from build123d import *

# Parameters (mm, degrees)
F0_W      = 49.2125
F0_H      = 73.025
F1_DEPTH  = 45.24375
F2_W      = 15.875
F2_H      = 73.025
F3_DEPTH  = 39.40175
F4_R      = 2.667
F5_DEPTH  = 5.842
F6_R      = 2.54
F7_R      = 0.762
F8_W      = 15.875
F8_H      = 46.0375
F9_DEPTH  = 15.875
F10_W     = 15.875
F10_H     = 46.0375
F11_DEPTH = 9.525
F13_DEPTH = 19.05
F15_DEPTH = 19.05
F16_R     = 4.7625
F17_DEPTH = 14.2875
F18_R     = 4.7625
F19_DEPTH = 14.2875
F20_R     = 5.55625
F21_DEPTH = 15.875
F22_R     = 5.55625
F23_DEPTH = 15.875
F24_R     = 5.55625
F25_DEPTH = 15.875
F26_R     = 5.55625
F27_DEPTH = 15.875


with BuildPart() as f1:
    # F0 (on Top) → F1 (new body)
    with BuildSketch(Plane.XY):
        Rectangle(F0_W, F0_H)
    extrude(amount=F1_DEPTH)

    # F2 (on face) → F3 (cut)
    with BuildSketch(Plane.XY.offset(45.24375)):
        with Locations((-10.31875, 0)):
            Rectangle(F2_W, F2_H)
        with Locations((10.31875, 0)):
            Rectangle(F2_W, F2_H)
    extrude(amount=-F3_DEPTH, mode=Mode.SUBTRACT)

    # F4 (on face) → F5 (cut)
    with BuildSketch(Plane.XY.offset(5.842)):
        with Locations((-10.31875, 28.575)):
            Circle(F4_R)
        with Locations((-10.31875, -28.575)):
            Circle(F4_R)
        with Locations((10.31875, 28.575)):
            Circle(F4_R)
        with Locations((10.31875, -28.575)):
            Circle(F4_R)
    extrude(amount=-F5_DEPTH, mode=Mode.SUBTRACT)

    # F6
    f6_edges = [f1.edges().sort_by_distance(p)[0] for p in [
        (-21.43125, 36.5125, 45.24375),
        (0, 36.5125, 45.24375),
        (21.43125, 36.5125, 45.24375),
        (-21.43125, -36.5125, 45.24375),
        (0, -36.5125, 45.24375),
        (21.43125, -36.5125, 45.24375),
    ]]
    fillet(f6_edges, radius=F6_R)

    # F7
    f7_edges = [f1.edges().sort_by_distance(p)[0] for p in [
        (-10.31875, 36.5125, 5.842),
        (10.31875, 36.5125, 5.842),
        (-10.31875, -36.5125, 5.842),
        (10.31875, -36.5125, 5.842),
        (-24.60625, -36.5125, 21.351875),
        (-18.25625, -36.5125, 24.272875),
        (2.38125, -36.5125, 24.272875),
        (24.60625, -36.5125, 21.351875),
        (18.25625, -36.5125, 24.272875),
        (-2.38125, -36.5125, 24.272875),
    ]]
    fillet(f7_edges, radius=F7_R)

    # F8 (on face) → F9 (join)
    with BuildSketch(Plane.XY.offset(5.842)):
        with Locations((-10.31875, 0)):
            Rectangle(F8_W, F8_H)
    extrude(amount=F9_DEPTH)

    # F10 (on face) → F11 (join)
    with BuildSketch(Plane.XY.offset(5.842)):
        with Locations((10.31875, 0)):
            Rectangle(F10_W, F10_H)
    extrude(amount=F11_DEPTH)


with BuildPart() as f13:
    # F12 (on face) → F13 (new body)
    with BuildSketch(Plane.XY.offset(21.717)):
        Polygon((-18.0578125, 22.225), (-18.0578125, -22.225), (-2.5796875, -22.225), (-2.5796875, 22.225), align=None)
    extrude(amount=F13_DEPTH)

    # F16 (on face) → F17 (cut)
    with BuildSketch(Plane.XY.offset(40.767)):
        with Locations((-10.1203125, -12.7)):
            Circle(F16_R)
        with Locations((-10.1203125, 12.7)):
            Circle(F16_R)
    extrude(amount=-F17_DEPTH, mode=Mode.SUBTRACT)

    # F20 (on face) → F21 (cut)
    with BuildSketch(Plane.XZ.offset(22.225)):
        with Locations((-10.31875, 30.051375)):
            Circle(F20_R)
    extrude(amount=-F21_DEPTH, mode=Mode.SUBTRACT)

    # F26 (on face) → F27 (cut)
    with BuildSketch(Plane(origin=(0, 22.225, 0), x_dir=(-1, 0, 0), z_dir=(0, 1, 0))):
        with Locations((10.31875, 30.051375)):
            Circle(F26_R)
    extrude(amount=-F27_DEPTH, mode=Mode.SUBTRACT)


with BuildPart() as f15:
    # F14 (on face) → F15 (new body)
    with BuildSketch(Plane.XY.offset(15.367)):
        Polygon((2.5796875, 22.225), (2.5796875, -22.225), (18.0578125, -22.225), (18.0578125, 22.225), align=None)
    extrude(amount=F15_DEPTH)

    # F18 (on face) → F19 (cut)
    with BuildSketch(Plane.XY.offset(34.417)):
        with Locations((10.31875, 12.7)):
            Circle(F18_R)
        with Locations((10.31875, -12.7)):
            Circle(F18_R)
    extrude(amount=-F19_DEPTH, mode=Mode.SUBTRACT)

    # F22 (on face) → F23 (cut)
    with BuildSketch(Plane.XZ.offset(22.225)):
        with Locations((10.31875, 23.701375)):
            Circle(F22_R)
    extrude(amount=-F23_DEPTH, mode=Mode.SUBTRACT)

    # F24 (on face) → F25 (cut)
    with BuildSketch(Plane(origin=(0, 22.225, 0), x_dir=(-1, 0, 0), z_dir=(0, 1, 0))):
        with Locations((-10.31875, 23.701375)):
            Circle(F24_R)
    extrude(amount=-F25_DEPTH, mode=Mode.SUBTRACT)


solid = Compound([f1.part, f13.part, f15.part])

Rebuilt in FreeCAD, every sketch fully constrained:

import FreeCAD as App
import Part
import Sketcher
from FreeCAD import Vector
Q = App.Units.Quantity


def edges_at(feature, points):
    """Names of the edges that pass closest to the given points."""
    edges = feature.Shape.Edges
    near = lambda p: min(range(len(edges)), key=lambda i: edges[i].distToShape(Part.Vertex(*p))[0])
    return sorted({f"Edge{near(p) + 1}" for p in points})


def add_polygon(sketch, points):
    """Adds a closed chain of lines whose ends are joined by coincident constraints."""
    first, n = sketch.GeometryCount, len(points)
    for a, b in zip(points, points[1:] + points[:1]):
        sketch.addGeometry(Part.LineSegment(App.Vector(*a, 0), App.Vector(*b, 0)), False)
    for i in range(n):
        sketch.addConstraint(Sketcher.Constraint("Coincident", first + i, 2, first + (i + 1) % n, 1))

doc = App.newDocument("Part")
params = doc.addObject("Spreadsheet::Sheet", "Params")
for row, (alias, value) in enumerate([
    ("sketch1_width", "1.9375 in"),
    ("sketch1_height", "2.875 in"),
    ("pad1_length", "1.78125 in"),
    ("sketch2_width", "0.625 in"),
    ("sketch2_height", "2.875 in"),
    ("pocket1_length", "39.40175 mm"),
    ("sketch3_diameter", "0.21 in"),
    ("pocket2_length", "0.23 in"),
    ("fillet_radius", "0.1 in"),
    ("fillet2_radius", "0.03 in"),
    ("sketch4_width", "0.625 in"),
    ("sketch4_height", "1.8125 in"),
    ("pad2_length", "0.625 in"),
    ("sketch5_width", "0.625 in"),
    ("sketch5_height", "1.8125 in"),
    ("pad3_length", "0.375 in"),
    ("sketch6_height", "1.75 in"),
    ("sketch6_width", "0.609375 in"),
    ("pad4_length", "0.75 in"),
    ("sketch7_diameter", "0.375 in"),
    ("pocket3_length", "0.5625 in"),
    ("sketch8_diameter", "0.4375 in"),
    ("pocket4_length", "0.625 in"),
    ("sketch9_diameter", "0.4375 in"),
    ("pocket5_length", "0.625 in"),
    ("sketch10_height", "1.75 in"),
    ("sketch10_width", "0.609375 in"),
    ("pad5_length", "0.75 in"),
    ("sketch11_diameter", "0.375 in"),
    ("pocket6_length", "0.5625 in"),
    ("sketch12_diameter", "0.4375 in"),
    ("pocket7_length", "0.625 in"),
    ("sketch13_diameter", "0.4375 in"),
    ("pocket8_length", "0.625 in"),
], start=1):
    params.set(f"A{row}", alias)
    params.set(f"B{row}", "=" + value)
    params.setAlias(f"B{row}", alias)

body = doc.addObject("PartDesign::Body", "Body")

sketch1 = body.newObject("Sketcher::SketchObject", "Sketch")
sketch1.AttachmentSupport = (doc.getObject("XY_Plane"), [""])
sketch1.MapMode = "FlatFace"
add_polygon(sketch1, [(-25, 37), (-25, -37), (25, -37), (25, 37)])
sketch1.addConstraint([
    Sketcher.Constraint("Vertical", 0),
    Sketcher.Constraint("Horizontal", 1),
    Sketcher.Constraint("Vertical", 2),
    Sketcher.Constraint("Horizontal", 3),
    Sketcher.Constraint("Symmetric", 0, 2, 2, 2, -1, 1),
    Sketcher.Constraint("DistanceX", 1, 1, 1, 2, Q("1.9375 in")),
    Sketcher.Constraint("DistanceY", 0, 2, 0, 1, Q("2.875 in")),
])
sketch1.setExpression("Constraints[9]", "Params.sketch1_width")
sketch1.setExpression("Constraints[10]", "Params.sketch1_height")
pad1 = body.newObject("PartDesign::Pad", "Pad")
pad1.Profile = sketch1
pad1.setExpression("Length", "Params.pad1_length")

sketch2 = body.newObject("Sketcher::SketchObject", "Sketch001")
sketch2.AttachmentSupport = (doc.getObject("XY_Plane"), [""])
sketch2.MapMode = "FlatFace"
sketch2.AttachmentOffset = App.Placement(Vector(0, 0, 1.78125 * 25.4), App.Rotation())
add_polygon(sketch2, [(-18, 37), (-18, -37), (-2, -37), (-2, 37)])
add_polygon(sketch2, [(2, 37), (2, -37), (18, -37), (18, 37)])
sketch2.addConstraint([
    Sketcher.Constraint("Vertical", 0),
    Sketcher.Constraint("Horizontal", 1),
    Sketcher.Constraint("Vertical", 2),
    Sketcher.Constraint("Horizontal", 3),
    Sketcher.Constraint("Vertical", 4),
    Sketcher.Constraint("Horizontal", 5),
    Sketcher.Constraint("Vertical", 6),
    Sketcher.Constraint("Horizontal", 7),
    Sketcher.Constraint("Symmetric", 2, 2, 4, 2, -1, 1),
    Sketcher.Constraint("Symmetric", 0, 2, 6, 2, -1, 1),
    Sketcher.Constraint("Horizontal", 1, 2, 4, 2),
    Sketcher.Constraint("DistanceX", 1, 1, 1, 2, Q("0.625 in")),
    Sketcher.Constraint("DistanceY", 0, 2, 0, 1, Q("2.875 in")),
    Sketcher.Constraint("DistanceX", 0, 2, -1, 1, Q("0.71875 in")),
])
sketch2.setExpression("Constraints[19]", "Params.sketch2_width")
sketch2.setExpression("Constraints[20]", "Params.sketch2_height")
pocket1 = body.newObject("PartDesign::Pocket", "Pocket")
pocket1.Profile = sketch2
pocket1.setExpression("Length", "Params.pocket1_length")

sketch3 = body.newObject("Sketcher::SketchObject", "Sketch002")
sketch3.AttachmentSupport = (doc.getObject("XY_Plane"), [""])
sketch3.MapMode = "FlatFace"
sketch3.AttachmentOffset = App.Placement(Vector(0, 0, 0.23 * 25.4), App.Rotation())
sketch3.addGeometry([
    Part.Circle(Vector(-10.3, 28.6, 0), Vector(0, 0, 1), 2.7),
    Part.Circle(Vector(-10.3, -28.6, 0), Vector(0, 0, 1), 2.7),
    Part.Circle(Vector(10.3, 28.6, 0), Vector(0, 0, 1), 2.7),
    Part.Circle(Vector(10.3, -28.6, 0), Vector(0, 0, 1), 2.7),
], False)
sketch3.addConstraint([
    Sketcher.Constraint("Equal", 0, 1),
    Sketcher.Constraint("Equal", 1, 2),
    Sketcher.Constraint("Equal", 2, 3),
    Sketcher.Constraint("Symmetric", 1, 3, 2, 3, -1, 1),
    Sketcher.Constraint("Symmetric", 0, 3, 3, 3, -1, 1),
    Sketcher.Constraint("Symmetric", 0, 3, 2, 3, -2),
    Sketcher.Constraint("Diameter", 0, Q("0.21 in")),
    Sketcher.Constraint("DistanceY", 1, 3, 0, 3, Q("2.25 in")),
    Sketcher.Constraint("DistanceX", 0, 3, -1, 1, Q("0.40625 in")),
])
sketch3.setExpression("Constraints[6]", "Params.sketch3_diameter")
pocket2 = body.newObject("PartDesign::Pocket", "Pocket001")
pocket2.Profile = sketch3
pocket2.setExpression("Length", "Params.pocket2_length")
doc.recompute()

fillet = body.newObject("PartDesign::Fillet", "Fillet")
fillet.Base = (pocket2, edges_at(pocket2, [
    (-21.431, 36.513, 45.244),
    (0, 36.513, 45.244),
    (21.431, 36.513, 45.244),
    (-21.431, -36.513, 45.244),
    (0, -36.513, 45.244),
    (21.431, -36.513, 45.244),
]))
fillet.setExpression("Radius", "Params.fillet_radius")
doc.recompute()

fillet2 = body.newObject("PartDesign::Fillet", "Fillet001")
fillet2.Base = (fillet, edges_at(fillet, [
    (-10.319, 36.513, 5.842),
    (10.319, 36.513, 5.842),
    (-10.319, -36.513, 5.842),
    (10.319, -36.513, 5.842),
    (-24.606, -36.513, 21.352),
    (-18.256, -36.513, 24.273),
    (2.381, -36.513, 24.273),
    (24.606, -36.513, 21.352),
    (18.256, -36.513, 24.273),
    (-2.381, -36.513, 24.273),
]))
fillet2.setExpression("Radius", "Params.fillet2_radius")

sketch4 = body.newObject("Sketcher::SketchObject", "Sketch003")
sketch4.AttachmentSupport = (doc.getObject("XY_Plane"), [""])
sketch4.MapMode = "FlatFace"
sketch4.AttachmentOffset = App.Placement(Vector(0, 0, 0.23 * 25.4), App.Rotation())
add_polygon(sketch4, [(-18, 23), (-18, -23), (-2, -23), (-2, 23)])
sketch4.addConstraint([
    Sketcher.Constraint("Vertical", 0),
    Sketcher.Constraint("Horizontal", 1),
    Sketcher.Constraint("Vertical", 2),
    Sketcher.Constraint("Horizontal", 3),
    Sketcher.Constraint("DistanceX", 1, 1, 1, 2, Q("0.625 in")),
    Sketcher.Constraint("DistanceY", 0, 2, 0, 1, Q("1.8125 in")),
    Sketcher.Constraint("DistanceX", 0, 2, -1, 1, Q("0.71875 in")),
    Sketcher.Constraint("DistanceY", 0, 2, -1, 1, Q("0.90625 in")),
])
sketch4.setExpression("Constraints[8]", "Params.sketch4_width")
sketch4.setExpression("Constraints[9]", "Params.sketch4_height")
pad2 = body.newObject("PartDesign::Pad", "Pad001")
pad2.Profile = sketch4
pad2.setExpression("Length", "Params.pad2_length")

sketch5 = body.newObject("Sketcher::SketchObject", "Sketch004")
sketch5.AttachmentSupport = (doc.getObject("XY_Plane"), [""])
sketch5.MapMode = "FlatFace"
sketch5.AttachmentOffset = App.Placement(Vector(0, 0, 0.23 * 25.4), App.Rotation())
add_polygon(sketch5, [(2, 23), (2, -23), (18, -23), (18, 23)])
sketch5.addConstraint([
    Sketcher.Constraint("Vertical", 0),
    Sketcher.Constraint("Horizontal", 1),
    Sketcher.Constraint("Vertical", 2),
    Sketcher.Constraint("Horizontal", 3),
    Sketcher.Constraint("DistanceX", 1, 1, 1, 2, Q("0.625 in")),
    Sketcher.Constraint("DistanceY", 0, 2, 0, 1, Q("1.8125 in")),
    Sketcher.Constraint("DistanceX", -1, 1, 0, 2, Q("0.09375 in")),
    Sketcher.Constraint("DistanceY", 0, 2, -1, 1, Q("0.90625 in")),
])
sketch5.setExpression("Constraints[8]", "Params.sketch5_width")
sketch5.setExpression("Constraints[9]", "Params.sketch5_height")
pad3 = body.newObject("PartDesign::Pad", "Pad002")
pad3.Profile = sketch5
pad3.setExpression("Length", "Params.pad3_length")
body2 = doc.addObject("PartDesign::Body", "Body001")

sketch6 = body2.newObject("Sketcher::SketchObject", "Sketch005")
sketch6.AttachmentSupport = (doc.getObject("XY_Plane001"), [""])
sketch6.MapMode = "FlatFace"
sketch6.AttachmentOffset = App.Placement(Vector(0, 0, 0.855 * 25.4), App.Rotation())
add_polygon(sketch6, [(-18, 22), (-18, -22), (-3, -22), (-3, 22)])
sketch6.addConstraint([
    Sketcher.Constraint("Vertical", 0),
    Sketcher.Constraint("Horizontal", 1),
    Sketcher.Constraint("Vertical", 2),
    Sketcher.Constraint("Horizontal", 3),
    Sketcher.Constraint("DistanceY", 0, 2, 0, 1, Q("1.75 in")),
    Sketcher.Constraint("DistanceX", 1, 1, 1, 2, Q("0.609375 in")),
    Sketcher.Constraint("DistanceY", 0, 2, -1, 1, Q("0.875 in")),
    Sketcher.Constraint("DistanceX", 0, 2, -1, 1, Q("18.057813 mm")),
])
sketch6.setExpression("Constraints[8]", "Params.sketch6_height")
sketch6.setExpression("Constraints[9]", "Params.sketch6_width")
pad4 = body2.newObject("PartDesign::Pad", "Pad003")
pad4.Profile = sketch6
pad4.setExpression("Length", "Params.pad4_length")

sketch7 = body2.newObject("Sketcher::SketchObject", "Sketch006")
sketch7.AttachmentSupport = (doc.getObject("XY_Plane001"), [""])
sketch7.MapMode = "FlatFace"
sketch7.AttachmentOffset = App.Placement(Vector(0, 0, 1.605 * 25.4), App.Rotation())
sketch7.addGeometry([
    Part.Circle(Vector(-10.1, -12.7, 0), Vector(0, 0, 1), 4.8),
    Part.Circle(Vector(-10.1, 12.7, 0), Vector(0, 0, 1), 4.8),
], False)
sketch7.addConstraint([
    Sketcher.Constraint("Equal", 0, 1),
    Sketcher.Constraint("Symmetric", 0, 3, 1, 3, -1),
    Sketcher.Constraint("Diameter", 0, Q("0.375 in")),
    Sketcher.Constraint("DistanceY", 0, 3, 1, 3, Q("1 in")),
    Sketcher.Constraint("DistanceX", 0, 3, -1, 1, Q("10.120313 mm")),
])
sketch7.setExpression("Constraints[2]", "Params.sketch7_diameter")
pocket3 = body2.newObject("PartDesign::Pocket", "Pocket002")
pocket3.Profile = sketch7
pocket3.setExpression("Length", "Params.pocket3_length")

sketch8 = body2.newObject("Sketcher::SketchObject", "Sketch007")
sketch8.AttachmentSupport = (doc.getObject("XZ_Plane001"), [""])
sketch8.MapMode = "FlatFace"
sketch8.AttachmentOffset = App.Placement(Vector(0, 0, 0.875 * 25.4), App.Rotation())
sketch8.addGeometry(Part.Circle(Vector(-10, 30, 0), Vector(0, 0, 1), 6), False)
sketch8.addConstraint([
    Sketcher.Constraint("Diameter", 0, Q("0.4375 in")),
    Sketcher.Constraint("DistanceX", 0, 3, -1, 1, Q("0.40625 in")),
    Sketcher.Constraint("DistanceY", -1, 1, 0, 3, Q("30.051375 mm")),
])
sketch8.setExpression("Constraints[0]", "Params.sketch8_diameter")
pocket4 = body2.newObject("PartDesign::Pocket", "Pocket003")
pocket4.Profile = sketch8
pocket4.setExpression("Length", "Params.pocket4_length")

sketch9 = body2.newObject("Sketcher::SketchObject", "Sketch008")
sketch9.AttachmentSupport = (doc.getObject("XZ_Plane001"), [""])
sketch9.MapMode = "FlatFace"
sketch9.AttachmentOffset = App.Placement(Vector(0, 0, -0.875 * 25.4), App.Rotation())
sketch9.addGeometry(Part.Circle(Vector(-10, 30, 0), Vector(0, 0, 1), 6), False)
sketch9.addConstraint([
    Sketcher.Constraint("Diameter", 0, Q("0.4375 in")),
    Sketcher.Constraint("DistanceX", 0, 3, -1, 1, Q("0.40625 in")),
    Sketcher.Constraint("DistanceY", -1, 1, 0, 3, Q("30.051375 mm")),
])
sketch9.setExpression("Constraints[0]", "Params.sketch9_diameter")
pocket5 = body2.newObject("PartDesign::Pocket", "Pocket004")
pocket5.Profile = sketch9
pocket5.setExpression("Length", "Params.pocket5_length")
pocket5.Reversed = True
body3 = doc.addObject("PartDesign::Body", "Body002")

sketch10 = body3.newObject("Sketcher::SketchObject", "Sketch009")
sketch10.AttachmentSupport = (doc.getObject("XY_Plane002"), [""])
sketch10.MapMode = "FlatFace"
sketch10.AttachmentOffset = App.Placement(Vector(0, 0, 0.605 * 25.4), App.Rotation())
add_polygon(sketch10, [(3, 22), (3, -22), (18, -22), (18, 22)])
sketch10.addConstraint([
    Sketcher.Constraint("Vertical", 0),
    Sketcher.Constraint("Horizontal", 1),
    Sketcher.Constraint("Vertical", 2),
    Sketcher.Constraint("Horizontal", 3),
    Sketcher.Constraint("DistanceY", 0, 2, 0, 1, Q("1.75 in")),
    Sketcher.Constraint("DistanceX", 1, 1, 1, 2, Q("0.609375 in")),
    Sketcher.Constraint("DistanceY", 0, 2, -1, 1, Q("0.875 in")),
    Sketcher.Constraint("DistanceX", -1, 1, 0, 2, Q("2.579687 mm")),
])
sketch10.setExpression("Constraints[8]", "Params.sketch10_height")
sketch10.setExpression("Constraints[9]", "Params.sketch10_width")
pad5 = body3.newObject("PartDesign::Pad", "Pad004")
pad5.Profile = sketch10
pad5.setExpression("Length", "Params.pad5_length")

sketch11 = body3.newObject("Sketcher::SketchObject", "Sketch010")
sketch11.AttachmentSupport = (doc.getObject("XY_Plane002"), [""])
sketch11.MapMode = "FlatFace"
sketch11.AttachmentOffset = App.Placement(Vector(0, 0, 1.355 * 25.4), App.Rotation())
sketch11.addGeometry([
    Part.Circle(Vector(10.3, 12.7, 0), Vector(0, 0, 1), 4.8),
    Part.Circle(Vector(10.3, -12.7, 0), Vector(0, 0, 1), 4.8),
], False)
sketch11.addConstraint([
    Sketcher.Constraint("Equal", 0, 1),
    Sketcher.Constraint("Symmetric", 0, 3, 1, 3, -1),
    Sketcher.Constraint("Diameter", 0, Q("0.375 in")),
    Sketcher.Constraint("DistanceY", 1, 3, 0, 3, Q("1 in")),
    Sketcher.Constraint("DistanceX", -1, 1, 0, 3, Q("0.40625 in")),
])
sketch11.setExpression("Constraints[2]", "Params.sketch11_diameter")
pocket6 = body3.newObject("PartDesign::Pocket", "Pocket005")
pocket6.Profile = sketch11
pocket6.setExpression("Length", "Params.pocket6_length")

sketch12 = body3.newObject("Sketcher::SketchObject", "Sketch011")
sketch12.AttachmentSupport = (doc.getObject("XZ_Plane002"), [""])
sketch12.MapMode = "FlatFace"
sketch12.AttachmentOffset = App.Placement(Vector(0, 0, 0.875 * 25.4), App.Rotation())
sketch12.addGeometry(Part.Circle(Vector(10, 24, 0), Vector(0, 0, 1), 6), False)
sketch12.addConstraint([
    Sketcher.Constraint("Diameter", 0, Q("0.4375 in")),
    Sketcher.Constraint("DistanceX", -1, 1, 0, 3, Q("0.40625 in")),
    Sketcher.Constraint("DistanceY", -1, 1, 0, 3, Q("23.701375 mm")),
])
sketch12.setExpression("Constraints[0]", "Params.sketch12_diameter")
pocket7 = body3.newObject("PartDesign::Pocket", "Pocket006")
pocket7.Profile = sketch12
pocket7.setExpression("Length", "Params.pocket7_length")

sketch13 = body3.newObject("Sketcher::SketchObject", "Sketch012")
sketch13.AttachmentSupport = (doc.getObject("XZ_Plane002"), [""])
sketch13.MapMode = "FlatFace"
sketch13.AttachmentOffset = App.Placement(Vector(0, 0, -0.875 * 25.4), App.Rotation())
sketch13.addGeometry(Part.Circle(Vector(10, 24, 0), Vector(0, 0, 1), 6), False)
sketch13.addConstraint([
    Sketcher.Constraint("Diameter", 0, Q("0.4375 in")),
    Sketcher.Constraint("DistanceX", -1, 1, 0, 3, Q("0.40625 in")),
    Sketcher.Constraint("DistanceY", -1, 1, 0, 3, Q("23.701375 mm")),
])
sketch13.setExpression("Constraints[0]", "Params.sketch13_diameter")
pocket8 = body3.newObject("PartDesign::Pocket", "Pocket007")
pocket8.Profile = sketch13
pocket8.setExpression("Length", "Params.pocket8_length")
pocket8.Reversed = True

doc.recompute()
